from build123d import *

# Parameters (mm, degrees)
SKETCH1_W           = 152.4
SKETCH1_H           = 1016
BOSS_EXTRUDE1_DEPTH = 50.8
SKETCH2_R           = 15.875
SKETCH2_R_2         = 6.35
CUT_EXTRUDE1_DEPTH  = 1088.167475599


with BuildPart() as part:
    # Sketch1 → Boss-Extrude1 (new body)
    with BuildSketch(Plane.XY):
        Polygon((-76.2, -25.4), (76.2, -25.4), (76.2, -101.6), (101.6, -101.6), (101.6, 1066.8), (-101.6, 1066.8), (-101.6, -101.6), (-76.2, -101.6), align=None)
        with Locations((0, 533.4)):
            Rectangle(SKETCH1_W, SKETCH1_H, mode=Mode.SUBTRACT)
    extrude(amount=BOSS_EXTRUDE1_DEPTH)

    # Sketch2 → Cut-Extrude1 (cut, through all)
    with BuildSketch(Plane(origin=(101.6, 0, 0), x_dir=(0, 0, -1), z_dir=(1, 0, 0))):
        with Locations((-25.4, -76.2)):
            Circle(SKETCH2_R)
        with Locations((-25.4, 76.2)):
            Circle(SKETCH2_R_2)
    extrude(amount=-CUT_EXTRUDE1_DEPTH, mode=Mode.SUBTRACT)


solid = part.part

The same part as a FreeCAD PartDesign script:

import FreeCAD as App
import Part
import Sketcher
from FreeCAD import Vector
Q = App.Units.Quantity


def add_polygon(sketch, points):
    """Adds a closed chain of lines whose ends are joined by coincident constraints."""
    first, n = sketch.GeometryCount, len(points)
    for a, b in zip(points, points[1:] + points[:1]):
        sketch.addGeometry(Part.LineSegment(App.Vector(*a, 0), App.Vector(*b, 0)), False)
    for i in range(n):
        sketch.addConstraint(Sketcher.Constraint("Coincident", first + i, 2, first + (i + 1) % n, 1))

doc = App.newDocument("Part")
body = doc.addObject("PartDesign::Body", "Body")

# Sketch on XY plane
sketch1 = doc.addObject("Sketcher::SketchObject", "Sketch")
body.addObject(sketch1)
sketch1.AttachmentSupport = (doc.XY_Plane, [""])
sketch1.MapMode = "FlatFace"
add_polygon(sketch1, [(-76, -25), (76, -25), (76, -102), (102, -102), (102, 1067), (-102, 1067), (-102, -102), (-76, -102)])  # lines 0-7
add_polygon(sketch1, [(76, 25), (-76, 25), (-76, 1041), (76, 1041)])  # lines 8-11
sketch1.addConstraint([
    Sketcher.Constraint("Horizontal", 0),
    Sketcher.Constraint("Vertical", 1),
    Sketcher.Constraint("Horizontal", 2),
    Sketcher.Constraint("Vertical", 3),
    Sketcher.Constraint("Horizontal", 4),
    Sketcher.Constraint("Vertical", 5),
    Sketcher.Constraint("Horizontal", 6),
    Sketcher.Constraint("Vertical", 7),
    Sketcher.Constraint("Horizontal", 8),
    Sketcher.Constraint("Vertical", 9),
    Sketcher.Constraint("Horizontal", 10),
    Sketcher.Constraint("Vertical", 11),
    Sketcher.Constraint("Symmetric", 0, 2, 8, 2, -1, 1),
    Sketcher.Constraint("Symmetric", 2, 2, 5, 2, -2),
    Sketcher.Constraint("Vertical", 7, 2, 8, 2),
    Sketcher.Constraint("Vertical", 1, 2, 10, 2),
    Sketcher.Constraint("DistanceX", 0, 1, 0, 2, Q("6 in")),
    Sketcher.Constraint("DistanceX", 2, 1, 2, 2, Q("1 in")),
    Sketcher.Constraint("DistanceY", 1, 2, 1, 1, Q("3 in")),
    Sketcher.Constraint("DistanceY", 3, 1, 3, 2, Q("46 in")),
    Sketcher.Constraint("DistanceY", 9, 1, 9, 2, Q("40 in")),
    Sketcher.Constraint("DistanceY", 0, 2, -1, 1, Q("1 in")),
])
pad1 = doc.addObject("PartDesign::Pad", "Pad")
body.addObject(pad1)
pad1.Profile = sketch1
pad1.Length = Q("2 in")

# Sketch on YZ plane
sketch2 = doc.addObject("Sketcher::SketchObject", "Sketch001")
body.addObject(sketch2)
sketch2.AttachmentSupport = (doc.YZ_Plane, [""])
sketch2.MapMode = "FlatFace"
sketch2.AttachmentOffset = App.Placement(Vector(0, 0, 4 * 25.4), App.Rotation())
sketch2.addGeometry([
    Part.Circle(Vector(-76, 25, 0), Vector(0, 0, 1), 16),
    Part.Circle(Vector(76, 25, 0), Vector(0, 0, 1), 6),
], False)
sketch2.addConstraint([
    Sketcher.Constraint("Symmetric", 0, 3, 1, 3, -2),
    Sketcher.Constraint("Diameter", 1, Q("0.5 in")),
    Sketcher.Constraint("Diameter", 0, Q("1.25 in")),
    Sketcher.Constraint("DistanceX", 0, 3, -1, 1, Q("3 in")),
    Sketcher.Constraint("DistanceY", -1, 1, 0, 3, Q("1 in")),
])
pocket1 = doc.addObject("PartDesign::Pocket", "Pocket")
body.addObject(pocket1)
pocket1.Profile = sketch2
pocket1.Type = "ThroughAll"

doc.recompute()
